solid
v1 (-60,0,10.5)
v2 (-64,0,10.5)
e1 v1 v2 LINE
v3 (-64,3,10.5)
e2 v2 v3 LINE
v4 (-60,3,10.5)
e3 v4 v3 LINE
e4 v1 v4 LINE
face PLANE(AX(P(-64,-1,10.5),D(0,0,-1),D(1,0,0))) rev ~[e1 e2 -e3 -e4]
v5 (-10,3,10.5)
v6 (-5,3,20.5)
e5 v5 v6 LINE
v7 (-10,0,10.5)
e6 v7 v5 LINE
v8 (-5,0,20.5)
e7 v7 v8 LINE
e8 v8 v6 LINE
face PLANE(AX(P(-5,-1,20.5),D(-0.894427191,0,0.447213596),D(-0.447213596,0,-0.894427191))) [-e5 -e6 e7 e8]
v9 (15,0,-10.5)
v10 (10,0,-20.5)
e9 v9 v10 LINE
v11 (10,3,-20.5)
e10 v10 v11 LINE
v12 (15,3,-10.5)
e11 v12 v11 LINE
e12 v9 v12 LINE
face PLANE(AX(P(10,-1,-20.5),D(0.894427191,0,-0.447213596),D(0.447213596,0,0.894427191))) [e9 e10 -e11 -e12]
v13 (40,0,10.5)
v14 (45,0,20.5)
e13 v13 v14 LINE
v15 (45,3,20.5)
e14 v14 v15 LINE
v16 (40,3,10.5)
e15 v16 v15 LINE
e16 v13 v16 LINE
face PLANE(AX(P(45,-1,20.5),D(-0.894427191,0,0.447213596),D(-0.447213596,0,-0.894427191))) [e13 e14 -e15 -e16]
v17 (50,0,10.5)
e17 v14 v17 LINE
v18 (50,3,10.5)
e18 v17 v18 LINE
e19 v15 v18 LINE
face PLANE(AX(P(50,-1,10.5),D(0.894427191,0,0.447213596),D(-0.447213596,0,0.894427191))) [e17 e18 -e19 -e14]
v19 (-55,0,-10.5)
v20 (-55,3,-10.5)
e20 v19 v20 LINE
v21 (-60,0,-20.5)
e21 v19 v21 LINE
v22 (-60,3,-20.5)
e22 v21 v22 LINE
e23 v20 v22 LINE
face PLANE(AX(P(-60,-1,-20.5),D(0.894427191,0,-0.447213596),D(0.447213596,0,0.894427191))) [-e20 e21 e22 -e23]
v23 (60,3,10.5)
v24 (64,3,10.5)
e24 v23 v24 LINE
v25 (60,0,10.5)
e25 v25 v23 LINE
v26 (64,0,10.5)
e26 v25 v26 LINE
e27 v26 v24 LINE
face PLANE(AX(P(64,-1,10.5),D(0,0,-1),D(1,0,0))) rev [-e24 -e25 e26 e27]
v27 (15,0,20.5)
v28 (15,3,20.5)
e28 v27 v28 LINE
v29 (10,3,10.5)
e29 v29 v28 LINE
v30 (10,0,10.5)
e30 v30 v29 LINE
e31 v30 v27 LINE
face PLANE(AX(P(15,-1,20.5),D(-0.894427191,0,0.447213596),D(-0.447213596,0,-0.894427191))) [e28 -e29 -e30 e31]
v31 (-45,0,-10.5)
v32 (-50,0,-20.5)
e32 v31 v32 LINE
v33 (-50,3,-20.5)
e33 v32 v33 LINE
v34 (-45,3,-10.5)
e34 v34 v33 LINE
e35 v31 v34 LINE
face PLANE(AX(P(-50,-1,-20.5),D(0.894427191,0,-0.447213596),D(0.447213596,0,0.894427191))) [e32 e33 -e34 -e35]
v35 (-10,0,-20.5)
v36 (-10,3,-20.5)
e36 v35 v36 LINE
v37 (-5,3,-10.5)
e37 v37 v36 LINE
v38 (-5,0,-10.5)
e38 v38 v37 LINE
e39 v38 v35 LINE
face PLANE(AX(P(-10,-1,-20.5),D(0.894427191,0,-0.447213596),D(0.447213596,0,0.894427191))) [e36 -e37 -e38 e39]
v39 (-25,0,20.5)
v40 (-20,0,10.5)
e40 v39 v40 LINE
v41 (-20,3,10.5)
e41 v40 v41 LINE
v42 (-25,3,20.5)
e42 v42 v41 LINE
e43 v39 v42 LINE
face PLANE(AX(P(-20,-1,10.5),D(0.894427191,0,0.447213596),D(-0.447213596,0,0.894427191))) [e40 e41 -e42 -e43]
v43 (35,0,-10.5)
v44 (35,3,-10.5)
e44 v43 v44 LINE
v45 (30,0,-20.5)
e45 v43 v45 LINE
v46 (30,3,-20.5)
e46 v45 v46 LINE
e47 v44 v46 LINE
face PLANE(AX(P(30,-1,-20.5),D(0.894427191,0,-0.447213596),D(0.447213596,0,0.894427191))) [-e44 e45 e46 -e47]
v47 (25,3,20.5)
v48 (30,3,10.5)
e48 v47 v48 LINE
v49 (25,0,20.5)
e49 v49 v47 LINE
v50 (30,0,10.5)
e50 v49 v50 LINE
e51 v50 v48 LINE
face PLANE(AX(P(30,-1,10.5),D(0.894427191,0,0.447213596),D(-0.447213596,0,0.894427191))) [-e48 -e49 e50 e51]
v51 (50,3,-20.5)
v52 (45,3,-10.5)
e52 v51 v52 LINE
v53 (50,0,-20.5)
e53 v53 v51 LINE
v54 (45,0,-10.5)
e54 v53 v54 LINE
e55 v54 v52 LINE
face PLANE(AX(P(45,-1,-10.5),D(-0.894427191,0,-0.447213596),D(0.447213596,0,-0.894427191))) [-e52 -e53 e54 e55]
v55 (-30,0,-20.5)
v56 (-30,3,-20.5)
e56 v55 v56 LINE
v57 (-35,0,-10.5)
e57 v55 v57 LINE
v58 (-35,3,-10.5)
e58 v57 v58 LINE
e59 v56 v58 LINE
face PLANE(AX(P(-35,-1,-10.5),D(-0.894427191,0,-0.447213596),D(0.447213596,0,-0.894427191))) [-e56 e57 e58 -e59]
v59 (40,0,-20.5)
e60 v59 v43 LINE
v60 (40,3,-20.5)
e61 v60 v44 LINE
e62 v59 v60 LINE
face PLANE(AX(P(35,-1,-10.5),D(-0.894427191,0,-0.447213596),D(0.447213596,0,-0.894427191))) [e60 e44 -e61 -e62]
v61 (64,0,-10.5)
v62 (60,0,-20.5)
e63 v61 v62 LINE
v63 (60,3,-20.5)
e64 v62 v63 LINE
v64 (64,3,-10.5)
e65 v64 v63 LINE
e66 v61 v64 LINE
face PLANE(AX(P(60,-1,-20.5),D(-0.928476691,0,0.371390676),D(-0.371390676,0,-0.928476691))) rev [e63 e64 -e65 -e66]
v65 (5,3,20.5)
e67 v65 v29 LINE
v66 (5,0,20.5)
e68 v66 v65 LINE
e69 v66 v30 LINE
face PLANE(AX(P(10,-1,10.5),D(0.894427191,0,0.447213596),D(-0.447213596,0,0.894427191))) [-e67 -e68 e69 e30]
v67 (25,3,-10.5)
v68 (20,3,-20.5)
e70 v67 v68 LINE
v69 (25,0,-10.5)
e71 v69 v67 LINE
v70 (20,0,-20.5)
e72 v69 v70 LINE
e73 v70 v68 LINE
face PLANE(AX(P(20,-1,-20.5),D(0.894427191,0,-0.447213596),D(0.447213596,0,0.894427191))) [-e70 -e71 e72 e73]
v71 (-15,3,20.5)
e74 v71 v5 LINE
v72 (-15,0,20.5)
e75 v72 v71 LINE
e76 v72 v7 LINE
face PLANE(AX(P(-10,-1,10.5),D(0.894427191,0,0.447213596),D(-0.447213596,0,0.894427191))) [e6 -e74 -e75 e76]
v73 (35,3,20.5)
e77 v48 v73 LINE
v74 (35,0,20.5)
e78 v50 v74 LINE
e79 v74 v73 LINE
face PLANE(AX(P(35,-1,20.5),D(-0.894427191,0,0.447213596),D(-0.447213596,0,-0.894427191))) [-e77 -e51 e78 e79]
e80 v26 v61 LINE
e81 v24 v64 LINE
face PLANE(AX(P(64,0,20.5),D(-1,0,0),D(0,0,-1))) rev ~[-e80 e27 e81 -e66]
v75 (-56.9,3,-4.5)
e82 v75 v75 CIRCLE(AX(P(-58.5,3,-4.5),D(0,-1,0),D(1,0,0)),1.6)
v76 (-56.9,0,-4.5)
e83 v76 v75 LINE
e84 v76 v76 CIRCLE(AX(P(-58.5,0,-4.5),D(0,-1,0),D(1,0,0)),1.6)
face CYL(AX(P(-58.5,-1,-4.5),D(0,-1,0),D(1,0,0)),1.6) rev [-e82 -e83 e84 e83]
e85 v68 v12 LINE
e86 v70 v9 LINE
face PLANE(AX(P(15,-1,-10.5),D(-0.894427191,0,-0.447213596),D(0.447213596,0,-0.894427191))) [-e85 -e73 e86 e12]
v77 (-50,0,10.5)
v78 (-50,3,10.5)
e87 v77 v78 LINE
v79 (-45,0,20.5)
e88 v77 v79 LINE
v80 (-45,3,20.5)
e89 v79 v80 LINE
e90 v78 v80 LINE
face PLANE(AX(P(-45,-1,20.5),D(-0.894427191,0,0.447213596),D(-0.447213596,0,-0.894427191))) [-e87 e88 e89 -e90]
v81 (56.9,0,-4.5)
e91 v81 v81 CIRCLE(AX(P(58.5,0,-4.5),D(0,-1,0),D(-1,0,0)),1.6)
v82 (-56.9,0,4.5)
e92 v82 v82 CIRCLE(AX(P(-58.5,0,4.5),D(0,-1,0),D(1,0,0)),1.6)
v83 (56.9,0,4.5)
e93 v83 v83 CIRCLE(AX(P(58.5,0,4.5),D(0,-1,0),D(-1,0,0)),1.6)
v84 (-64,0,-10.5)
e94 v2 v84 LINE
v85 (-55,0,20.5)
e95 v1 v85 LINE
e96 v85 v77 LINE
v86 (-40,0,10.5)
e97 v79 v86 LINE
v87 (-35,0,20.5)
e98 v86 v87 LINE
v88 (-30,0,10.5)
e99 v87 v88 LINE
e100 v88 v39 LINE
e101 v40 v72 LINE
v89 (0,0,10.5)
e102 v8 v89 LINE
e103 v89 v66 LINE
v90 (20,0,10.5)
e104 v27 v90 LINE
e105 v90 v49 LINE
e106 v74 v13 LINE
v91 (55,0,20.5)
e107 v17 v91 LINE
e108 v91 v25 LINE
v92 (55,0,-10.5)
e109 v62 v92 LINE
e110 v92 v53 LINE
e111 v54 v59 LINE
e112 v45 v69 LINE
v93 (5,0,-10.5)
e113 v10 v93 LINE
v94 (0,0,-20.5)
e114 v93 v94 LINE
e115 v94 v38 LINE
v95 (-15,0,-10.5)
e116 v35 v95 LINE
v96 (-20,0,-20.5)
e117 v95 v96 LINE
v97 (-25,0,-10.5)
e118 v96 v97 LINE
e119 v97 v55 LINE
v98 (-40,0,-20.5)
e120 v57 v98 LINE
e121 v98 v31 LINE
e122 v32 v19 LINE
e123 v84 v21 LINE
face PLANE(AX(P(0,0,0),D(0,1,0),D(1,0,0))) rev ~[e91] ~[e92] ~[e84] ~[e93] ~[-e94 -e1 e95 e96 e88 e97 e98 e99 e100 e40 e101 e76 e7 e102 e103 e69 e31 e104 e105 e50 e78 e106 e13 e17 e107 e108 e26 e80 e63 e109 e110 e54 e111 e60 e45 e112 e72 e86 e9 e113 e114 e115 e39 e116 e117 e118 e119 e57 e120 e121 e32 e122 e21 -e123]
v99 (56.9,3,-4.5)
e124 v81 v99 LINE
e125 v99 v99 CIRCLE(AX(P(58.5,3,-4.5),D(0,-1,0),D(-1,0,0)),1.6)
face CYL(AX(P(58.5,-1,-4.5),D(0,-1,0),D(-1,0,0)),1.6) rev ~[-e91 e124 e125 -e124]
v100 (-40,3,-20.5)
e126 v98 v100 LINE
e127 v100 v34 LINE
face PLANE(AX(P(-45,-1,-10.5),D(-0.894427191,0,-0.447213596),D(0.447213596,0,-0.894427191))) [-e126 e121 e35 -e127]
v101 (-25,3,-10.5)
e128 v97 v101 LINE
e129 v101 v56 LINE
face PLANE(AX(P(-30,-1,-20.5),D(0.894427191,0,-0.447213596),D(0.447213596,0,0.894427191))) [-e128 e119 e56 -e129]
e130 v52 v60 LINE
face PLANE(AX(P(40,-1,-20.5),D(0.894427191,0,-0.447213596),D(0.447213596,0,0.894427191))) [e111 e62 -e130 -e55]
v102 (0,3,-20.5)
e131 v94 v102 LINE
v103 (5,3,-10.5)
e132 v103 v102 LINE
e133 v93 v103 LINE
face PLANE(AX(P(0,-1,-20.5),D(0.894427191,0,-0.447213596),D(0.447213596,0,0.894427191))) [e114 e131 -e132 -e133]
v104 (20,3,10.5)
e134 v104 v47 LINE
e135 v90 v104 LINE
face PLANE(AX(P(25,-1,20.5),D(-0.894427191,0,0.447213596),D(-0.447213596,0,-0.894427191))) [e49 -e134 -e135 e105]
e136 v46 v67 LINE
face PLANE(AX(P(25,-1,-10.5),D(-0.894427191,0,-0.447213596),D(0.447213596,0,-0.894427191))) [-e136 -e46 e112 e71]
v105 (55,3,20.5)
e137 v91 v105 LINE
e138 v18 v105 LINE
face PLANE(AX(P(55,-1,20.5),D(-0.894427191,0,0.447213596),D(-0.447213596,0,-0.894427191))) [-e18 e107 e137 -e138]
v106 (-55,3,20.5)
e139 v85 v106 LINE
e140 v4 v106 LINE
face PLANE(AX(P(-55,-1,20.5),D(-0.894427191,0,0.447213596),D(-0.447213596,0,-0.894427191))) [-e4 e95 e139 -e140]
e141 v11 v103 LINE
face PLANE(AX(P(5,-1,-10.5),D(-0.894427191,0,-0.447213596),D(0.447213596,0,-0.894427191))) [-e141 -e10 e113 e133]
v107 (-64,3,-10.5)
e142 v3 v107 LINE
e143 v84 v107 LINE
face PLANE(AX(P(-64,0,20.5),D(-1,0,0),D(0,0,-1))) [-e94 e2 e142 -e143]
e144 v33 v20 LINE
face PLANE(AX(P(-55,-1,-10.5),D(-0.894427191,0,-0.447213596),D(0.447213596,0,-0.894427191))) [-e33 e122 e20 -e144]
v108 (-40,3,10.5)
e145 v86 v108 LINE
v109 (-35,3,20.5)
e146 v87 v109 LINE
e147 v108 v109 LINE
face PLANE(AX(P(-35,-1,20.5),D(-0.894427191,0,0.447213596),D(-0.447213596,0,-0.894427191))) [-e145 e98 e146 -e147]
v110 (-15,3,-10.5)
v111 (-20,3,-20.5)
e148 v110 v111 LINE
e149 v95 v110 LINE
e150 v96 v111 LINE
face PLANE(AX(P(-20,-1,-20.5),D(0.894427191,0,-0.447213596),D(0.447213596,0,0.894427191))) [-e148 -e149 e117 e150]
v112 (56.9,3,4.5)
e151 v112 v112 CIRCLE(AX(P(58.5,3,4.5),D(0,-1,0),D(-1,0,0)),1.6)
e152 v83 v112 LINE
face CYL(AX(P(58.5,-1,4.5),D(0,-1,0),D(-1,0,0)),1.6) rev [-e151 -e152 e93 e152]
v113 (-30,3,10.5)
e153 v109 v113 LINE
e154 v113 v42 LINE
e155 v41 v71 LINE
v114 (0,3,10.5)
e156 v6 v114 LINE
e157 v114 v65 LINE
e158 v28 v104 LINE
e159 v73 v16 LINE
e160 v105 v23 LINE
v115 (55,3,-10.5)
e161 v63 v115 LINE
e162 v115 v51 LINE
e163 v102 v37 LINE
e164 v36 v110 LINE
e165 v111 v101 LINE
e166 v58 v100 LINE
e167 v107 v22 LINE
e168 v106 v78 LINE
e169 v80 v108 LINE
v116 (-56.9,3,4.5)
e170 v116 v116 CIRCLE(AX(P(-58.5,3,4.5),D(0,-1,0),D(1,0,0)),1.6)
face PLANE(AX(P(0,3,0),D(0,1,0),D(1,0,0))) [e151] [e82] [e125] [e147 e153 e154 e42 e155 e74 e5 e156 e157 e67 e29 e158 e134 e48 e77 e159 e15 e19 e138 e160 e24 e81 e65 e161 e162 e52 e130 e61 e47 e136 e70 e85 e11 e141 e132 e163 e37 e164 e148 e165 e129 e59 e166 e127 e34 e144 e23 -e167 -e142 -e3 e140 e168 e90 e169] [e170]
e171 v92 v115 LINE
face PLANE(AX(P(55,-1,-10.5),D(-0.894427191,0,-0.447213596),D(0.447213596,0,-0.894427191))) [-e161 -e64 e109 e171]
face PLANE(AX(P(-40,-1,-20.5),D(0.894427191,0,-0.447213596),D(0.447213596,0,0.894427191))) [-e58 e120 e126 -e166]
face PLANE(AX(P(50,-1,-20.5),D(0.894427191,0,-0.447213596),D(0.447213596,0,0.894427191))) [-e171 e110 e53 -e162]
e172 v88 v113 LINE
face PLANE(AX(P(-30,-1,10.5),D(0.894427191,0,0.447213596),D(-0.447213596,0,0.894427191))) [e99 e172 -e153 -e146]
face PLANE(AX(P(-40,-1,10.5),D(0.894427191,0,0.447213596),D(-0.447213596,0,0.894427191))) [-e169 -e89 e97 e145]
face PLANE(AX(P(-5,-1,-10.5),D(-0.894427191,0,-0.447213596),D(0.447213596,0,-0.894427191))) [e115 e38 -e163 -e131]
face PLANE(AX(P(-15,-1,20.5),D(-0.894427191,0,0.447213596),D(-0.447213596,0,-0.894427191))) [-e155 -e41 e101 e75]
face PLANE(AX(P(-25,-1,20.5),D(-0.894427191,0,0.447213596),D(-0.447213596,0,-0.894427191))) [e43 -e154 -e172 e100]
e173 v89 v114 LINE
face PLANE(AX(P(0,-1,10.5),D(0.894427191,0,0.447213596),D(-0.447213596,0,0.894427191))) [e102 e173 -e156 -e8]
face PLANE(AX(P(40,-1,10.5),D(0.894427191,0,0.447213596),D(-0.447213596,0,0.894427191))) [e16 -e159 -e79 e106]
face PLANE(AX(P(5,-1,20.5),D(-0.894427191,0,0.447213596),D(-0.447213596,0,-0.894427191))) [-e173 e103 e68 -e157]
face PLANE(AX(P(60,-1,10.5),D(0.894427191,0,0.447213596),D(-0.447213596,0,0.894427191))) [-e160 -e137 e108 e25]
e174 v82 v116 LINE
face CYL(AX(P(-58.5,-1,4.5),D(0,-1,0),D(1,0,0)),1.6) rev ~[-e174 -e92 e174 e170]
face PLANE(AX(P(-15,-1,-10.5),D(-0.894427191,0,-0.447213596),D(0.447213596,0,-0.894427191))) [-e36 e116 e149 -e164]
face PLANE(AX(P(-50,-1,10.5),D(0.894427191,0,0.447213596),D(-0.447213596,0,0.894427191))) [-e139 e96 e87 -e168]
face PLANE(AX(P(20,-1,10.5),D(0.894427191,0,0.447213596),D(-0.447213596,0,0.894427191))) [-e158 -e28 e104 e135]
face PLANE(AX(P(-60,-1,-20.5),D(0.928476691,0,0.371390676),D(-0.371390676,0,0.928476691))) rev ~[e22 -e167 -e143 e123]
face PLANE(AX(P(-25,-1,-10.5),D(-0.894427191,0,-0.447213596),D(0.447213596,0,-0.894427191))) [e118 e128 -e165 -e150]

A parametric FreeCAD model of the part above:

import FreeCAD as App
import Part
import Sketcher

V = App.Vector


def add_polygon(sketch, points):
    """Adds a closed chain of lines whose ends are joined by coincident constraints."""
    first, n = sketch.GeometryCount, len(points)
    for a, b in zip(points, points[1:] + points[:1]):
        sketch.addGeometry(Part.LineSegment(App.Vector(*a, 0), App.Vector(*b, 0)), False)
    for i in range(n):
        sketch.addConstraint(Sketcher.Constraint("Coincident", first + i, 2, first + (i + 1) % n, 1))

doc = App.newDocument("Part")
body = doc.addObject("PartDesign::Body", "Body")

# Sketch on XZ plane
sketch1 = body.newObject("Sketcher::SketchObject", "Sketch")
sketch1.AttachmentSupport = (doc.getObject("XZ_Plane"), [""])
sketch1.MapMode = "FlatFace"
add_polygon(sketch1, [(-64, -20), (-64, 20), (64, 20), (64, -20)])  # lines 0-3
sketch1.addConstraint(Sketcher.Constraint("Vertical", 0))
sketch1.addConstraint(Sketcher.Constraint("Horizontal", 1))
sketch1.addConstraint(Sketcher.Constraint("Vertical", 2))
sketch1.addConstraint(Sketcher.Constraint("Horizontal", 3))
sketch1.addConstraint(Sketcher.Constraint("Symmetric", 0, 2, 2, 2, -1, 1))
sketch1.addConstraint(Sketcher.Constraint("DistanceX", 1, 1, 1, 2, 128.0))
sketch1.addConstraint(Sketcher.Constraint("DistanceY", 0, 1, 0, 2, 41.0))
pad1 = body.newObject("PartDesign::Pad", "Pad")
pad1.Profile = sketch1
pad1.Length = 3
pad1.Reversed = True

# Sketch on XZ plane
sketch2 = body.newObject("Sketcher::SketchObject", "Sketch001")
sketch2.AttachmentSupport = (doc.getObject("XZ_Plane"), [""])
sketch2.MapMode = "FlatFace"
sketch2.AttachmentOffset = App.Placement(V(0, 0, 1), App.Rotation())
add_polygon(sketch2, [(-60, -20), (-55, -10), (-50, -20)])  # lines 0-2
sketch2.addConstraint(Sketcher.Constraint("Horizontal", 2))
sketch2.addConstraint(Sketcher.Constraint("Equal", 0, 1))
sketch2.addConstraint(Sketcher.Constraint("DistanceX", 2, 2, 2, 1, 10.0))
sketch2.addConstraint(Sketcher.Constraint("DistanceX", 0, 2, -1, 1, 55.0))
sketch2.addConstraint(Sketcher.Constraint("DistanceY", 1, 2, 0, 2, 10.0))
sketch2.addConstraint(Sketcher.Constraint("DistanceY", 0, 2, -1, 1, 10.5))
pocket1 = body.newObject("PartDesign::Pocket", "Pocket")
pocket1.Profile = sketch2
pocket1.Length = 5
doc.recompute()

linearpattern = body.newObject("PartDesign::LinearPattern", "LinearPattern")
linearpattern.Originals = [pocket1]
linearpattern.Direction = (doc.getObject("X_Axis"), [""])
linearpattern.Mode = "offset"
linearpattern.Offset = 10
linearpattern.Occurrences = 12
body.Tip = linearpattern

# Sketch on XZ plane
sketch3 = body.newObject("Sketcher::SketchObject", "Sketch002")
sketch3.AttachmentSupport = (doc.getObject("XZ_Plane"), [""])
sketch3.MapMode = "FlatFace"
sketch3.AttachmentOffset = App.Placement(V(0, 0, 1), App.Rotation())
add_polygon(sketch3, [(-55, 20), (-60, 10), (-60, 20)])  # lines 0-2
add_polygon(sketch3, [(-50, 10), (-55, 20), (-50, 20)])  # lines 3-5
sketch3.addConstraint(Sketcher.Constraint("Vertical", 1))
sketch3.addConstraint(Sketcher.Constraint("Horizontal", 2))
sketch3.addConstraint(Sketcher.Constraint("Horizontal", 4))
sketch3.addConstraint(Sketcher.Constraint("Vertical", 5))
sketch3.addConstraint(Sketcher.Constraint("Coincident", 3, 2, 2, 2))
sketch3.addConstraint(Sketcher.Constraint("Horizontal", 0, 2, 5, 2))
sketch3.addConstraint(Sketcher.Constraint("Equal", 2, 4))
sketch3.addConstraint(Sketcher.Constraint("DistanceX", 2, 1, 2, 2, 5.0))
sketch3.addConstraint(Sketcher.Constraint("DistanceY", 1, 1, 1, 2, 10.0))
sketch3.addConstraint(Sketcher.Constraint("DistanceX", 0, 2, -1, 1, 60.0))
sketch3.addConstraint(Sketcher.Constraint("DistanceY", -1, 1, 0, 2, 10.5))
pocket2 = body.newObject("PartDesign::Pocket", "Pocket001")
pocket2.Profile = sketch3
pocket2.Length = 5
doc.recompute()

linearpattern2 = body.newObject("PartDesign::LinearPattern", "LinearPattern001")
linearpattern2.Originals = [pocket2]
linearpattern2.Direction = (doc.getObject("X_Axis"), [""])
linearpattern2.Mode = "offset"
linearpattern2.Offset = 10
linearpattern2.Occurrences = 12
body.Tip = linearpattern2

# Sketch on XZ plane
sketch4 = body.newObject("Sketcher::SketchObject", "Sketch003")
sketch4.AttachmentSupport = (doc.getObject("XZ_Plane"), [""])
sketch4.MapMode = "FlatFace"
sketch4.AttachmentOffset = App.Placement(V(0, 0, 1), App.Rotation())
sketch4.addGeometry(Part.Circle(V(-58.5, -4.5, 0), V(0, 0, 1), 1.6), False)
sketch4.addConstraint(Sketcher.Constraint("Diameter", 0, 3.2))
sketch4.addConstraint(Sketcher.Constraint("DistanceX", 0, 3, -1, 1, 58.5))
sketch4.addConstraint(Sketcher.Constraint("DistanceY", 0, 3, -1, 1, 4.5))
pocket3 = body.newObject("PartDesign::Pocket", "Pocket002")
pocket3.Profile = sketch4
pocket3.Length = 5
doc.recompute()

mirrored = body.newObject("PartDesign::Mirrored", "Mirrored")
mirrored.Originals = [pocket3]
mirrored.MirrorPlane = (doc.getObject("YZ_Plane"), [""])
body.Tip = mirrored
doc.recompute()

mirrored2 = body.newObject("PartDesign::Mirrored", "Mirrored001")
mirrored2.Originals = [pocket3]
mirrored2.MirrorPlane = (doc.getObject("XY_Plane"), [""])
body.Tip = mirrored2

# Sketch on XZ plane
sketch5 = body.newObject("Sketcher::SketchObject", "Sketch004")
sketch5.AttachmentSupport = (doc.getObject("XZ_Plane"), [""])
sketch5.MapMode = "FlatFace"
sketch5.AttachmentOffset = App.Placement(V(0, 0, 1), App.Rotation())
sketch5.addGeometry(Part.Circle(V(58.5, 4.5, 0), V(0, 0, 1), 1.6), False)
sketch5.addConstraint(Sketcher.Constraint("Diameter", 0, 3.2))
sketch5.addConstraint(Sketcher.Constraint("DistanceX", -1, 1, 0, 3, 58.5))
sketch5.addConstraint(Sketcher.Constraint("DistanceY", -1, 1, 0, 3, 4.5))
pocket4 = body.newObject("PartDesign::Pocket", "Pocket003")
pocket4.Profile = sketch5
pocket4.Length = 5

# Sketch on XZ plane
sketch6 = body.newObject("Sketcher::SketchObject", "Sketch005")
sketch6.AttachmentSupport = (doc.getObject("XZ_Plane"), [""])
sketch6.MapMode = "FlatFace"
sketch6.AttachmentOffset = App.Placement(V(0, 0, 1), App.Rotation())
add_polygon(sketch6, [(-64, -10.5), (-60, -20.5), (-64, -20.5)])  # lines 0-2
sketch6.addConstraint(Sketcher.Constraint("Horizontal", 1))
sketch6.addConstraint(Sketcher.Constraint("Vertical", 2))
sketch6.addConstraint(Sketcher.Constraint("DistanceX", 1, 2, 1, 1, 4.0))
sketch6.addConstraint(Sketcher.Constraint("DistanceY", 2, 1, 2, 2, 10.0))
sketch6.addConstraint(Sketcher.Constraint("DistanceX", 0, 2, -1, 1, 60.0))
sketch6.addConstraint(Sketcher.Constraint("DistanceY", 0, 2, -1, 1, 20.5))
pocket5 = body.newObject("PartDesign::Pocket", "Pocket004")
pocket5.Profile = sketch6
pocket5.Length = 5
doc.recompute()

mirrored3 = body.newObject("PartDesign::Mirrored", "Mirrored002")
mirrored3.Originals = [pocket5]
mirrored3.MirrorPlane = (doc.getObject("YZ_Plane"), [""])
body.Tip = mirrored3

# Sketch on XZ plane
sketch7 = body.newObject("Sketcher::SketchObject", "Sketch006")
sketch7.AttachmentSupport = (doc.getObject("XZ_Plane"), [""])
sketch7.MapMode = "FlatFace"
sketch7.AttachmentOffset = App.Placement(V(0, 0, 1), App.Rotation())
add_polygon(sketch7, [(-64, 10.5), (-64, 20.5), (-60, 20.5), (-60, 10.5)])  # lines 0-3
sketch7.addConstraint(Sketcher.Constraint("Vertical", 0))
sketch7.addConstraint(Sketcher.Constraint("Horizontal", 1))
sketch7.addConstraint(Sketcher.Constraint("Vertical", 2))
sketch7.addConstraint(Sketcher.Constraint("Horizontal", 3))
sketch7.addConstraint(Sketcher.Constraint("DistanceX", 1, 1, 1, 2, 4.0))
sketch7.addConstraint(Sketcher.Constraint("DistanceY", 0, 1, 0, 2, 10.0))
sketch7.addConstraint(Sketcher.Constraint("DistanceX", 0, 2, -1, 1, 64.0))
sketch7.addConstraint(Sketcher.Constraint("DistanceY", -1, 1, 0, 2, 20.5))
pocket6 = body.newObject("PartDesign::Pocket", "Pocket005")
pocket6.Profile = sketch7
pocket6.Length = 5
doc.recompute()

mirrored4 = body.newObject("PartDesign::Mirrored", "Mirrored003")
mirrored4.Originals = [pocket6]
mirrored4.MirrorPlane = (doc.getObject("YZ_Plane"), [""])
body.Tip = mirrored4

doc.recompute()
